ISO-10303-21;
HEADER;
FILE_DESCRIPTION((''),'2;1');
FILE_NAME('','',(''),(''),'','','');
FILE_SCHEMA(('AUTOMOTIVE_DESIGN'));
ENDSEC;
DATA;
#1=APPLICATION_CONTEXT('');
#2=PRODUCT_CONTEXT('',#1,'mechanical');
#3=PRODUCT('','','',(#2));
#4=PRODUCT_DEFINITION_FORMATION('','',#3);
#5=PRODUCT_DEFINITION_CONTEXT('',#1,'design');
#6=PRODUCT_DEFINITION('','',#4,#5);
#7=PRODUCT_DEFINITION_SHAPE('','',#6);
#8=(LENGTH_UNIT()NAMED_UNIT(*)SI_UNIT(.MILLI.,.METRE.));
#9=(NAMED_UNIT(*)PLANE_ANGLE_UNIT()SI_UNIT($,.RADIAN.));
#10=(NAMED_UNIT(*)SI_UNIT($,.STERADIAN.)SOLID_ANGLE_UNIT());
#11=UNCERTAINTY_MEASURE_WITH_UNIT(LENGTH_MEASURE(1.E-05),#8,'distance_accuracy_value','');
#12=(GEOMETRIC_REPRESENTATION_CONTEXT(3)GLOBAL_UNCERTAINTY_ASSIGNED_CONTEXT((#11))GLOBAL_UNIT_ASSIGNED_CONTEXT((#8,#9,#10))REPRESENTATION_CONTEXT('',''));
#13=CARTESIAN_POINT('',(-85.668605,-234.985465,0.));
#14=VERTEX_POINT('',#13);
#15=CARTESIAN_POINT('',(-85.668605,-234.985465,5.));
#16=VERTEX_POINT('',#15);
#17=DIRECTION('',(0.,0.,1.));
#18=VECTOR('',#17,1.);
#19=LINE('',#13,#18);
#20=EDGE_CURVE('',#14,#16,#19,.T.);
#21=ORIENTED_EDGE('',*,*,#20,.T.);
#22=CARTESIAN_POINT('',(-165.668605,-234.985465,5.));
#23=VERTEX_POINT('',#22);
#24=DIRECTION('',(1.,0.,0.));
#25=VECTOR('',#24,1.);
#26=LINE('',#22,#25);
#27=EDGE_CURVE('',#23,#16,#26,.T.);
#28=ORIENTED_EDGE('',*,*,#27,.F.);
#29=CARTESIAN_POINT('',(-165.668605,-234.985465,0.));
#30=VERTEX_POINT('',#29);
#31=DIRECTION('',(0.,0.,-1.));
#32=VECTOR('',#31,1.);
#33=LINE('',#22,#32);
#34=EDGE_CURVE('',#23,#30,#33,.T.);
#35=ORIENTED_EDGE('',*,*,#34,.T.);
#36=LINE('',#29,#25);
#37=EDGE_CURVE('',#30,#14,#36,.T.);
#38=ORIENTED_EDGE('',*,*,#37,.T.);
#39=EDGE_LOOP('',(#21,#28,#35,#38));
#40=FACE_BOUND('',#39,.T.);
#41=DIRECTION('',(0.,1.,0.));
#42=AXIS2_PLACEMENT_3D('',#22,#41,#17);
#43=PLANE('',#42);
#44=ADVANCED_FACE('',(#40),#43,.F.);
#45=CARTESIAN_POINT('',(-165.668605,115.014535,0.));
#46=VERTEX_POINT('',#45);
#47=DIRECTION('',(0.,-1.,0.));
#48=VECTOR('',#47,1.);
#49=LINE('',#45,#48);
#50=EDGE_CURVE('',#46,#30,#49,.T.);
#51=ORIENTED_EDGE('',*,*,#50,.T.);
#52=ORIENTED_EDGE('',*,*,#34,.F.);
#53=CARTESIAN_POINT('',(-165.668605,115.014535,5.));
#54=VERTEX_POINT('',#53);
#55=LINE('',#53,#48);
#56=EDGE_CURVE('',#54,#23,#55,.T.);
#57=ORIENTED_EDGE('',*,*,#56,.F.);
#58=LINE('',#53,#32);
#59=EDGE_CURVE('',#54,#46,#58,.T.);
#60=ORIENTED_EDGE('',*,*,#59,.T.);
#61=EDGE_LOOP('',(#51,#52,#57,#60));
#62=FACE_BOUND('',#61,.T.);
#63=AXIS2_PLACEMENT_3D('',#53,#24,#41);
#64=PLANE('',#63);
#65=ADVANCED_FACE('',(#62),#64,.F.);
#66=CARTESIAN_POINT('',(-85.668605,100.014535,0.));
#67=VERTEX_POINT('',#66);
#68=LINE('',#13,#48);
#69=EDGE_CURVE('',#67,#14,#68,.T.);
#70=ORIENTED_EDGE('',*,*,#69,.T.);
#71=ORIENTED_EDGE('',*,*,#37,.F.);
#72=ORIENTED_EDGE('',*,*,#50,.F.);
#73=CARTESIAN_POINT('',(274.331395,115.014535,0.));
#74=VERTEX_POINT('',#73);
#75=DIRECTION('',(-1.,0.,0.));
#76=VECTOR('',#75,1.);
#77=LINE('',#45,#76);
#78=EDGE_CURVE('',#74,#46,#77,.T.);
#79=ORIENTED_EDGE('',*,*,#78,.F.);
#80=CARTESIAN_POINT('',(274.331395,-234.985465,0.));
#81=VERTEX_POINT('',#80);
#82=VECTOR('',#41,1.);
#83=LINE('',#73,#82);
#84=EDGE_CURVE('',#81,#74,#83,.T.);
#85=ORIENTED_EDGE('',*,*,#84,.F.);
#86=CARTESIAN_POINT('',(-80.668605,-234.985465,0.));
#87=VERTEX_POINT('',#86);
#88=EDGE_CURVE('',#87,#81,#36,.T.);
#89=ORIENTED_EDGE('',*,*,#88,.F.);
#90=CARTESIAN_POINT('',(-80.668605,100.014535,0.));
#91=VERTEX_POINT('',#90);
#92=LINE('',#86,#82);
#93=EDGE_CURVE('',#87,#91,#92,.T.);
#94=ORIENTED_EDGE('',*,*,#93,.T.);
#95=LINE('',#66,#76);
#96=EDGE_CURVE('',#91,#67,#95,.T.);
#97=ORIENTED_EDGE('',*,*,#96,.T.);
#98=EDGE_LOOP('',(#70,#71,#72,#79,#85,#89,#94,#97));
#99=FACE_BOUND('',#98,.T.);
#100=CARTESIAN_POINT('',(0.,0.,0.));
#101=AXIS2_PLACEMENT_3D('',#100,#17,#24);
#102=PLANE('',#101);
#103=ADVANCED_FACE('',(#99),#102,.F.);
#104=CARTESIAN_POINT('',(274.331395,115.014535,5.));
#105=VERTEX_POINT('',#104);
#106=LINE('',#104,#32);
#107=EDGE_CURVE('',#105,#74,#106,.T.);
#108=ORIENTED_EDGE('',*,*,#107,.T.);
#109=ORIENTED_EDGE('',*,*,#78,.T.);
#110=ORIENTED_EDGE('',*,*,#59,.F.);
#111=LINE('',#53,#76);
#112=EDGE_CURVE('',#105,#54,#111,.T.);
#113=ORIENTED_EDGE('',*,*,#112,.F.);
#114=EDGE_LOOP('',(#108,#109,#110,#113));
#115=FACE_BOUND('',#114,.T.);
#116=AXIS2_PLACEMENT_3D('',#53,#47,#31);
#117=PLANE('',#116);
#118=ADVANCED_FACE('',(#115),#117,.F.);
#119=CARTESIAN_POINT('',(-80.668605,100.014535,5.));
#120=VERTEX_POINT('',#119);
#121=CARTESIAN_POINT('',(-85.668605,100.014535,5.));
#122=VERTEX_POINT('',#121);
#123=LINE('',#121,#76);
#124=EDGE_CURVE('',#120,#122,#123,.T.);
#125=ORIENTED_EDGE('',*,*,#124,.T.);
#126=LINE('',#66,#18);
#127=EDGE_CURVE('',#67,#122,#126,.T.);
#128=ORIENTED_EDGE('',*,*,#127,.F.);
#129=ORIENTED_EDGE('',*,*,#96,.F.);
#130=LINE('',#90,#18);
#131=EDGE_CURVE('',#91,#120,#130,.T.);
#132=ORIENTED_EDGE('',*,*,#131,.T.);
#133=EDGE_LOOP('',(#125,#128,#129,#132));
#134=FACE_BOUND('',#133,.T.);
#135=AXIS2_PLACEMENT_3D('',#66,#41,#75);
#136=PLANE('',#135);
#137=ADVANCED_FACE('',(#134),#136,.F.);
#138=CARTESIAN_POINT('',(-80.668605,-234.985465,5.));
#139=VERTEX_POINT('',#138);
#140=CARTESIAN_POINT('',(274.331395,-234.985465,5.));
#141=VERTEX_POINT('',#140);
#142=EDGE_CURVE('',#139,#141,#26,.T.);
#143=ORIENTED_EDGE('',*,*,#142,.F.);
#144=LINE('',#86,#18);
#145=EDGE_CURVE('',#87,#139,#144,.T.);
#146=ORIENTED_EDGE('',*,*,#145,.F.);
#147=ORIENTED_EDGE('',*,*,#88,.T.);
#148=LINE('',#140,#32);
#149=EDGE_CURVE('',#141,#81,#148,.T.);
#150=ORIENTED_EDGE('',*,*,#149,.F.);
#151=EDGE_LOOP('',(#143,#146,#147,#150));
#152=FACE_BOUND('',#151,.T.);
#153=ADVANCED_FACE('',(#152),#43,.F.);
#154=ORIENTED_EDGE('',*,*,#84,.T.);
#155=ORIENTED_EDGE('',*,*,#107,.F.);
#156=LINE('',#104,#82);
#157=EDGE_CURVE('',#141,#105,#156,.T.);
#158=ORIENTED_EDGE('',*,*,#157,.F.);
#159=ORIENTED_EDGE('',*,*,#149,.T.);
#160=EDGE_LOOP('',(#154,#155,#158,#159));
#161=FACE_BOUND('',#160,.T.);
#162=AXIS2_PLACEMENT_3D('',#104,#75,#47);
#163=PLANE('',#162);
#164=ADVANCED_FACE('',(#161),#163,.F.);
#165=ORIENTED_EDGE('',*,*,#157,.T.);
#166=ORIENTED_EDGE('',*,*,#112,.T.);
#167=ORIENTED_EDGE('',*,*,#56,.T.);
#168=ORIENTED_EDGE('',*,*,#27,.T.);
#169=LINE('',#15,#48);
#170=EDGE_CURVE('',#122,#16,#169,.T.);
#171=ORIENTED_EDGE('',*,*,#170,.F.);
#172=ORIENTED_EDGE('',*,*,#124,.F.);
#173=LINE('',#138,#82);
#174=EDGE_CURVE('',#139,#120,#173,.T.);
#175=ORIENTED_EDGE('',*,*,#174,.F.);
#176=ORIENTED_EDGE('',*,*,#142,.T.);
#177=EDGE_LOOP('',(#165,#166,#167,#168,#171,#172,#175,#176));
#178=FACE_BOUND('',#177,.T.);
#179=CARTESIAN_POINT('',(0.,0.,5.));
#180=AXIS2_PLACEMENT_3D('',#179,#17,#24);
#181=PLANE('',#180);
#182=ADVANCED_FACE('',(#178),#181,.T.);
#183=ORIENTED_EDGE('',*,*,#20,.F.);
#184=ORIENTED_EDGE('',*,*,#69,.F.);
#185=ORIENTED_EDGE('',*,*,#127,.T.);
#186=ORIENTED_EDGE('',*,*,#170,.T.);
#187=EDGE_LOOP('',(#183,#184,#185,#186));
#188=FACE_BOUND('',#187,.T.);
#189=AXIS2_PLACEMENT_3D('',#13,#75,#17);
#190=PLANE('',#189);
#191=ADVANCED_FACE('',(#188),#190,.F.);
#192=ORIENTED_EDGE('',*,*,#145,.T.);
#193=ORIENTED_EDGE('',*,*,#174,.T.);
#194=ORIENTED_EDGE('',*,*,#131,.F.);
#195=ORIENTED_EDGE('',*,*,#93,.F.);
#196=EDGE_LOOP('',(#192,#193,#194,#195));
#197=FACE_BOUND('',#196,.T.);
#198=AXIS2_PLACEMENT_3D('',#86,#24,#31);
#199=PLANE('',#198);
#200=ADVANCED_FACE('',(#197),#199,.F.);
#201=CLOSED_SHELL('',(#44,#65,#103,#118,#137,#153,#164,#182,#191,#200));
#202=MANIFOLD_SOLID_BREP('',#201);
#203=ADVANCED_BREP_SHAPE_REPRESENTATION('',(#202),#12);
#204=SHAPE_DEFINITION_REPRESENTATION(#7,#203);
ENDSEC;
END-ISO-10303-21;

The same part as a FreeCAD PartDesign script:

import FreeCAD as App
import Part
import Sketcher
Q = App.Units.Quantity


def add_polygon(sketch, points):
    """Adds a closed chain of lines whose ends are joined by coincident constraints."""
    first, n = sketch.GeometryCount, len(points)
    for a, b in zip(points, points[1:] + points[:1]):
        sketch.addGeometry(Part.LineSegment(App.Vector(*a, 0), App.Vector(*b, 0)), False)
    for i in range(n):
        sketch.addConstraint(Sketcher.Constraint("Coincident", first + i, 2, first + (i + 1) % n, 1))

doc = App.newDocument("Part")
body = doc.addObject("PartDesign::Body", "Body")

# Sketch on XY plane
sketch1 = body.newObject("Sketcher::SketchObject", "Sketch")
sketch1.AttachmentSupport = (doc.getObject("XY_Plane"), [""])
sketch1.MapMode = "FlatFace"
add_polygon(sketch1, [(-165.668605, 115.014535), (-165.668605, -234.985465), (274.331395, -234.985465), (274.331395, 115.014535)])  # lines 0-3
sketch1.addConstraint([
    Sketcher.Constraint("Vertical", 0),
    Sketcher.Constraint("Horizontal", 1),
    Sketcher.Constraint("Vertical", 2),
    Sketcher.Constraint("Horizontal", 3),
    Sketcher.Constraint("DistanceX", 1, 1, 1, 2, Q("440 mm")),
    Sketcher.Constraint("DistanceY", 0, 2, 0, 1, Q("350 mm")),
    Sketcher.Constraint("DistanceX", 0, 2, -1, 1, Q("165.668605 mm")),
    Sketcher.Constraint("DistanceY", 0, 2, -1, 1, Q("234.985465 mm")),
])
pad1 = body.newObject("PartDesign::Pad", "Pad")
pad1.Profile = sketch1
pad1.Length = 5

# Sketch on XY plane
sketch2 = body.newObject("Sketcher::SketchObject", "Sketch001")
sketch2.AttachmentSupport = (doc.getObject("XY_Plane"), [""])
sketch2.MapMode = "FlatFace"
sketch2.AttachmentOffset = App.Placement(App.Vector(0, 0, 5), App.Rotation())
add_polygon(sketch2, [(-85.668605, 100.014535), (-85.668605, -234.985465), (-80.668605, -234.985465), (-80.668605, 100.014535)])  # lines 0-3
sketch2.addConstraint([
    Sketcher.Constraint("Vertical", 0),
    Sketcher.Constraint("Horizontal", 1),
    Sketcher.Constraint("Vertical", 2),
    Sketcher.Constraint("Horizontal", 3),
    Sketcher.Constraint("DistanceX", 1, 1, 1, 2, Q("5 mm")),
    Sketcher.Constraint("DistanceY", 0, 2, 0, 1, Q("335 mm")),
    Sketcher.Constraint("DistanceX", 0, 2, -1, 1, Q("85.668605 mm")),
    Sketcher.Constraint("DistanceY", 0, 2, -1, 1, Q("234.985465 mm")),
])
pocket1 = body.newObject("PartDesign::Pocket", "Pocket")
pocket1.Profile = sketch2
pocket1.Length = 5

doc.recompute()
